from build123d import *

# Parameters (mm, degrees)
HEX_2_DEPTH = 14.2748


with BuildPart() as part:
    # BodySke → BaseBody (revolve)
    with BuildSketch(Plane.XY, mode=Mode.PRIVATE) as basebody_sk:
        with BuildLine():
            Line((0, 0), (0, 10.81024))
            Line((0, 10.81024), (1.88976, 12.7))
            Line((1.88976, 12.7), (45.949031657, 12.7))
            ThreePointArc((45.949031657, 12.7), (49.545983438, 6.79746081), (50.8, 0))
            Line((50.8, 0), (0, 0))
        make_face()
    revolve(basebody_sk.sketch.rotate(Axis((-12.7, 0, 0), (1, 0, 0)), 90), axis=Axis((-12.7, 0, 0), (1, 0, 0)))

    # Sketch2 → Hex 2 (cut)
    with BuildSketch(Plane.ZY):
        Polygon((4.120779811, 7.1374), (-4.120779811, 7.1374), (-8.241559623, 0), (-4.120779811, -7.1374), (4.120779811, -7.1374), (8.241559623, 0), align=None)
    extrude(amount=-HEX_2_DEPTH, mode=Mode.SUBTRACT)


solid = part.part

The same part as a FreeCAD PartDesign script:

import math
import FreeCAD as App
import Part
import Sketcher
from FreeCAD import Vector
Q = App.Units.Quantity


def add_polygon(sketch, points):
    """Adds a closed chain of lines whose ends are joined by coincident constraints."""
    first, n = sketch.GeometryCount, len(points)
    for a, b in zip(points, points[1:] + points[:1]):
        sketch.addGeometry(Part.LineSegment(App.Vector(*a, 0), App.Vector(*b, 0)), False)
    for i in range(n):
        sketch.addConstraint(Sketcher.Constraint("Coincident", first + i, 2, first + (i + 1) % n, 1))

doc = App.newDocument("Part")
body = doc.addObject("PartDesign::Body", "Body")

sketch1 = doc.addObject("Sketcher::SketchObject", "Sketch")
body.addObject(sketch1)
sketch1.AttachmentSupport = (doc.XY_Plane, [""])
sketch1.MapMode = "FlatFace"
sketch1.addGeometry(Part.LineSegment(Vector(0, 10.8, 0), Vector(0, 0, 0)), False)
sketch1.addGeometry(Part.LineSegment(Vector(0, 0, 0), Vector(50.8, 0, 0)), False)
sketch1.addGeometry(Part.ArcOfCircle(Part.Circle(Vector(31.7, 0, 0), Vector(0, 0, 1), 19.1), math.radians(0), math.radians(42)), False)
sketch1.addGeometry(Part.LineSegment(Vector(45.9, 12.7, 0), Vector(1.9, 12.7, 0)), False)
sketch1.addGeometry(Part.LineSegment(Vector(1.9, 12.7, 0), Vector(0, 10.8, 0)), False)
sketch1.addConstraint(Sketcher.Constraint("Coincident", 0, 2, 1, 1))
sketch1.addConstraint(Sketcher.Constraint("Coincident", 1, 2, 2, 1))
sketch1.addConstraint(Sketcher.Constraint("Coincident", 2, 2, 3, 1))
sketch1.addConstraint(Sketcher.Constraint("Coincident", 3, 2, 4, 1))
sketch1.addConstraint(Sketcher.Constraint("Coincident", 4, 2, 0, 1))
sketch1.addConstraint(Sketcher.Constraint("Vertical", 0))
sketch1.addConstraint(Sketcher.Constraint("Horizontal", 1))
sketch1.addConstraint(Sketcher.Constraint("Horizontal", 3))
sketch1.addConstraint(Sketcher.Constraint("Coincident", 0, 2, -1, 1))
sketch1.addConstraint(Sketcher.Constraint("PointOnObject", 2, 3, -1))
sketch1.addConstraint(Sketcher.Constraint("DistanceX", 1, 1, 1, 2, Q("2 in")))
sketch1.addConstraint(Sketcher.Constraint("Radius", 2, Q("0.75 in")))
sketch1.addConstraint(Sketcher.Constraint("Angle", 4, Q("-135 deg")))
sketch1.addConstraint(Sketcher.Constraint("DistanceY", -1, 1, 2, 2, Q("0.5 in")))
sketch1.addConstraint(Sketcher.Constraint("DistanceY", 0, 2, 0, 1, Q("0.4256 in")))
revolution = doc.addObject("PartDesign::Revolution", "Revolution")
body.addObject(revolution)
revolution.Profile = sketch1
revolution.ReferenceAxis = (sketch1, ["H_Axis"])
revolution.Angle = 360

sketch2 = doc.addObject("Sketcher::SketchObject", "Sketch001")
body.addObject(sketch2)
sketch2.AttachmentSupport = (doc.YZ_Plane, [""])
sketch2.MapMode = "FlatFace"
add_polygon(sketch2, [(7, 4), (7, -4), (0, -8), (-7, -4), (-7, 4), (0, 8)])
sketch2.addConstraint(Sketcher.Constraint("Vertical", 0))
sketch2.addConstraint(Sketcher.Constraint("Vertical", 3))
sketch2.addConstraint(Sketcher.Constraint("Symmetric", 0, 2, 3, 2, -1, 1))
sketch2.addConstraint(Sketcher.Constraint("Symmetric", 1, 2, 4, 2, -1, 1))
sketch2.addConstraint(Sketcher.Constraint("PointOnObject", 1, 2, -2))
sketch2.addConstraint(Sketcher.Constraint("Parallel", 2, 5))
sketch2.addConstraint(Sketcher.Constraint("Horizontal", 0, 2, 2, 2))
sketch2.addConstraint(Sketcher.Constraint("Angle", 1, Q("-150 deg")))
sketch2.addConstraint(Sketcher.Constraint("DistanceX", -1, 1, 0, 2, Q("0.281 in")))
sketch2.addConstraint(Sketcher.Constraint("DistanceY", 0, 2, 0, 1, Q("8.24156 mm")))
pocket1 = doc.addObject("PartDesign::Pocket", "Pocket")
body.addObject(pocket1)
pocket1.Profile = sketch2
pocket1.Length = Q("0.562 in")
pocket1.Reversed = True

doc.recompute()
